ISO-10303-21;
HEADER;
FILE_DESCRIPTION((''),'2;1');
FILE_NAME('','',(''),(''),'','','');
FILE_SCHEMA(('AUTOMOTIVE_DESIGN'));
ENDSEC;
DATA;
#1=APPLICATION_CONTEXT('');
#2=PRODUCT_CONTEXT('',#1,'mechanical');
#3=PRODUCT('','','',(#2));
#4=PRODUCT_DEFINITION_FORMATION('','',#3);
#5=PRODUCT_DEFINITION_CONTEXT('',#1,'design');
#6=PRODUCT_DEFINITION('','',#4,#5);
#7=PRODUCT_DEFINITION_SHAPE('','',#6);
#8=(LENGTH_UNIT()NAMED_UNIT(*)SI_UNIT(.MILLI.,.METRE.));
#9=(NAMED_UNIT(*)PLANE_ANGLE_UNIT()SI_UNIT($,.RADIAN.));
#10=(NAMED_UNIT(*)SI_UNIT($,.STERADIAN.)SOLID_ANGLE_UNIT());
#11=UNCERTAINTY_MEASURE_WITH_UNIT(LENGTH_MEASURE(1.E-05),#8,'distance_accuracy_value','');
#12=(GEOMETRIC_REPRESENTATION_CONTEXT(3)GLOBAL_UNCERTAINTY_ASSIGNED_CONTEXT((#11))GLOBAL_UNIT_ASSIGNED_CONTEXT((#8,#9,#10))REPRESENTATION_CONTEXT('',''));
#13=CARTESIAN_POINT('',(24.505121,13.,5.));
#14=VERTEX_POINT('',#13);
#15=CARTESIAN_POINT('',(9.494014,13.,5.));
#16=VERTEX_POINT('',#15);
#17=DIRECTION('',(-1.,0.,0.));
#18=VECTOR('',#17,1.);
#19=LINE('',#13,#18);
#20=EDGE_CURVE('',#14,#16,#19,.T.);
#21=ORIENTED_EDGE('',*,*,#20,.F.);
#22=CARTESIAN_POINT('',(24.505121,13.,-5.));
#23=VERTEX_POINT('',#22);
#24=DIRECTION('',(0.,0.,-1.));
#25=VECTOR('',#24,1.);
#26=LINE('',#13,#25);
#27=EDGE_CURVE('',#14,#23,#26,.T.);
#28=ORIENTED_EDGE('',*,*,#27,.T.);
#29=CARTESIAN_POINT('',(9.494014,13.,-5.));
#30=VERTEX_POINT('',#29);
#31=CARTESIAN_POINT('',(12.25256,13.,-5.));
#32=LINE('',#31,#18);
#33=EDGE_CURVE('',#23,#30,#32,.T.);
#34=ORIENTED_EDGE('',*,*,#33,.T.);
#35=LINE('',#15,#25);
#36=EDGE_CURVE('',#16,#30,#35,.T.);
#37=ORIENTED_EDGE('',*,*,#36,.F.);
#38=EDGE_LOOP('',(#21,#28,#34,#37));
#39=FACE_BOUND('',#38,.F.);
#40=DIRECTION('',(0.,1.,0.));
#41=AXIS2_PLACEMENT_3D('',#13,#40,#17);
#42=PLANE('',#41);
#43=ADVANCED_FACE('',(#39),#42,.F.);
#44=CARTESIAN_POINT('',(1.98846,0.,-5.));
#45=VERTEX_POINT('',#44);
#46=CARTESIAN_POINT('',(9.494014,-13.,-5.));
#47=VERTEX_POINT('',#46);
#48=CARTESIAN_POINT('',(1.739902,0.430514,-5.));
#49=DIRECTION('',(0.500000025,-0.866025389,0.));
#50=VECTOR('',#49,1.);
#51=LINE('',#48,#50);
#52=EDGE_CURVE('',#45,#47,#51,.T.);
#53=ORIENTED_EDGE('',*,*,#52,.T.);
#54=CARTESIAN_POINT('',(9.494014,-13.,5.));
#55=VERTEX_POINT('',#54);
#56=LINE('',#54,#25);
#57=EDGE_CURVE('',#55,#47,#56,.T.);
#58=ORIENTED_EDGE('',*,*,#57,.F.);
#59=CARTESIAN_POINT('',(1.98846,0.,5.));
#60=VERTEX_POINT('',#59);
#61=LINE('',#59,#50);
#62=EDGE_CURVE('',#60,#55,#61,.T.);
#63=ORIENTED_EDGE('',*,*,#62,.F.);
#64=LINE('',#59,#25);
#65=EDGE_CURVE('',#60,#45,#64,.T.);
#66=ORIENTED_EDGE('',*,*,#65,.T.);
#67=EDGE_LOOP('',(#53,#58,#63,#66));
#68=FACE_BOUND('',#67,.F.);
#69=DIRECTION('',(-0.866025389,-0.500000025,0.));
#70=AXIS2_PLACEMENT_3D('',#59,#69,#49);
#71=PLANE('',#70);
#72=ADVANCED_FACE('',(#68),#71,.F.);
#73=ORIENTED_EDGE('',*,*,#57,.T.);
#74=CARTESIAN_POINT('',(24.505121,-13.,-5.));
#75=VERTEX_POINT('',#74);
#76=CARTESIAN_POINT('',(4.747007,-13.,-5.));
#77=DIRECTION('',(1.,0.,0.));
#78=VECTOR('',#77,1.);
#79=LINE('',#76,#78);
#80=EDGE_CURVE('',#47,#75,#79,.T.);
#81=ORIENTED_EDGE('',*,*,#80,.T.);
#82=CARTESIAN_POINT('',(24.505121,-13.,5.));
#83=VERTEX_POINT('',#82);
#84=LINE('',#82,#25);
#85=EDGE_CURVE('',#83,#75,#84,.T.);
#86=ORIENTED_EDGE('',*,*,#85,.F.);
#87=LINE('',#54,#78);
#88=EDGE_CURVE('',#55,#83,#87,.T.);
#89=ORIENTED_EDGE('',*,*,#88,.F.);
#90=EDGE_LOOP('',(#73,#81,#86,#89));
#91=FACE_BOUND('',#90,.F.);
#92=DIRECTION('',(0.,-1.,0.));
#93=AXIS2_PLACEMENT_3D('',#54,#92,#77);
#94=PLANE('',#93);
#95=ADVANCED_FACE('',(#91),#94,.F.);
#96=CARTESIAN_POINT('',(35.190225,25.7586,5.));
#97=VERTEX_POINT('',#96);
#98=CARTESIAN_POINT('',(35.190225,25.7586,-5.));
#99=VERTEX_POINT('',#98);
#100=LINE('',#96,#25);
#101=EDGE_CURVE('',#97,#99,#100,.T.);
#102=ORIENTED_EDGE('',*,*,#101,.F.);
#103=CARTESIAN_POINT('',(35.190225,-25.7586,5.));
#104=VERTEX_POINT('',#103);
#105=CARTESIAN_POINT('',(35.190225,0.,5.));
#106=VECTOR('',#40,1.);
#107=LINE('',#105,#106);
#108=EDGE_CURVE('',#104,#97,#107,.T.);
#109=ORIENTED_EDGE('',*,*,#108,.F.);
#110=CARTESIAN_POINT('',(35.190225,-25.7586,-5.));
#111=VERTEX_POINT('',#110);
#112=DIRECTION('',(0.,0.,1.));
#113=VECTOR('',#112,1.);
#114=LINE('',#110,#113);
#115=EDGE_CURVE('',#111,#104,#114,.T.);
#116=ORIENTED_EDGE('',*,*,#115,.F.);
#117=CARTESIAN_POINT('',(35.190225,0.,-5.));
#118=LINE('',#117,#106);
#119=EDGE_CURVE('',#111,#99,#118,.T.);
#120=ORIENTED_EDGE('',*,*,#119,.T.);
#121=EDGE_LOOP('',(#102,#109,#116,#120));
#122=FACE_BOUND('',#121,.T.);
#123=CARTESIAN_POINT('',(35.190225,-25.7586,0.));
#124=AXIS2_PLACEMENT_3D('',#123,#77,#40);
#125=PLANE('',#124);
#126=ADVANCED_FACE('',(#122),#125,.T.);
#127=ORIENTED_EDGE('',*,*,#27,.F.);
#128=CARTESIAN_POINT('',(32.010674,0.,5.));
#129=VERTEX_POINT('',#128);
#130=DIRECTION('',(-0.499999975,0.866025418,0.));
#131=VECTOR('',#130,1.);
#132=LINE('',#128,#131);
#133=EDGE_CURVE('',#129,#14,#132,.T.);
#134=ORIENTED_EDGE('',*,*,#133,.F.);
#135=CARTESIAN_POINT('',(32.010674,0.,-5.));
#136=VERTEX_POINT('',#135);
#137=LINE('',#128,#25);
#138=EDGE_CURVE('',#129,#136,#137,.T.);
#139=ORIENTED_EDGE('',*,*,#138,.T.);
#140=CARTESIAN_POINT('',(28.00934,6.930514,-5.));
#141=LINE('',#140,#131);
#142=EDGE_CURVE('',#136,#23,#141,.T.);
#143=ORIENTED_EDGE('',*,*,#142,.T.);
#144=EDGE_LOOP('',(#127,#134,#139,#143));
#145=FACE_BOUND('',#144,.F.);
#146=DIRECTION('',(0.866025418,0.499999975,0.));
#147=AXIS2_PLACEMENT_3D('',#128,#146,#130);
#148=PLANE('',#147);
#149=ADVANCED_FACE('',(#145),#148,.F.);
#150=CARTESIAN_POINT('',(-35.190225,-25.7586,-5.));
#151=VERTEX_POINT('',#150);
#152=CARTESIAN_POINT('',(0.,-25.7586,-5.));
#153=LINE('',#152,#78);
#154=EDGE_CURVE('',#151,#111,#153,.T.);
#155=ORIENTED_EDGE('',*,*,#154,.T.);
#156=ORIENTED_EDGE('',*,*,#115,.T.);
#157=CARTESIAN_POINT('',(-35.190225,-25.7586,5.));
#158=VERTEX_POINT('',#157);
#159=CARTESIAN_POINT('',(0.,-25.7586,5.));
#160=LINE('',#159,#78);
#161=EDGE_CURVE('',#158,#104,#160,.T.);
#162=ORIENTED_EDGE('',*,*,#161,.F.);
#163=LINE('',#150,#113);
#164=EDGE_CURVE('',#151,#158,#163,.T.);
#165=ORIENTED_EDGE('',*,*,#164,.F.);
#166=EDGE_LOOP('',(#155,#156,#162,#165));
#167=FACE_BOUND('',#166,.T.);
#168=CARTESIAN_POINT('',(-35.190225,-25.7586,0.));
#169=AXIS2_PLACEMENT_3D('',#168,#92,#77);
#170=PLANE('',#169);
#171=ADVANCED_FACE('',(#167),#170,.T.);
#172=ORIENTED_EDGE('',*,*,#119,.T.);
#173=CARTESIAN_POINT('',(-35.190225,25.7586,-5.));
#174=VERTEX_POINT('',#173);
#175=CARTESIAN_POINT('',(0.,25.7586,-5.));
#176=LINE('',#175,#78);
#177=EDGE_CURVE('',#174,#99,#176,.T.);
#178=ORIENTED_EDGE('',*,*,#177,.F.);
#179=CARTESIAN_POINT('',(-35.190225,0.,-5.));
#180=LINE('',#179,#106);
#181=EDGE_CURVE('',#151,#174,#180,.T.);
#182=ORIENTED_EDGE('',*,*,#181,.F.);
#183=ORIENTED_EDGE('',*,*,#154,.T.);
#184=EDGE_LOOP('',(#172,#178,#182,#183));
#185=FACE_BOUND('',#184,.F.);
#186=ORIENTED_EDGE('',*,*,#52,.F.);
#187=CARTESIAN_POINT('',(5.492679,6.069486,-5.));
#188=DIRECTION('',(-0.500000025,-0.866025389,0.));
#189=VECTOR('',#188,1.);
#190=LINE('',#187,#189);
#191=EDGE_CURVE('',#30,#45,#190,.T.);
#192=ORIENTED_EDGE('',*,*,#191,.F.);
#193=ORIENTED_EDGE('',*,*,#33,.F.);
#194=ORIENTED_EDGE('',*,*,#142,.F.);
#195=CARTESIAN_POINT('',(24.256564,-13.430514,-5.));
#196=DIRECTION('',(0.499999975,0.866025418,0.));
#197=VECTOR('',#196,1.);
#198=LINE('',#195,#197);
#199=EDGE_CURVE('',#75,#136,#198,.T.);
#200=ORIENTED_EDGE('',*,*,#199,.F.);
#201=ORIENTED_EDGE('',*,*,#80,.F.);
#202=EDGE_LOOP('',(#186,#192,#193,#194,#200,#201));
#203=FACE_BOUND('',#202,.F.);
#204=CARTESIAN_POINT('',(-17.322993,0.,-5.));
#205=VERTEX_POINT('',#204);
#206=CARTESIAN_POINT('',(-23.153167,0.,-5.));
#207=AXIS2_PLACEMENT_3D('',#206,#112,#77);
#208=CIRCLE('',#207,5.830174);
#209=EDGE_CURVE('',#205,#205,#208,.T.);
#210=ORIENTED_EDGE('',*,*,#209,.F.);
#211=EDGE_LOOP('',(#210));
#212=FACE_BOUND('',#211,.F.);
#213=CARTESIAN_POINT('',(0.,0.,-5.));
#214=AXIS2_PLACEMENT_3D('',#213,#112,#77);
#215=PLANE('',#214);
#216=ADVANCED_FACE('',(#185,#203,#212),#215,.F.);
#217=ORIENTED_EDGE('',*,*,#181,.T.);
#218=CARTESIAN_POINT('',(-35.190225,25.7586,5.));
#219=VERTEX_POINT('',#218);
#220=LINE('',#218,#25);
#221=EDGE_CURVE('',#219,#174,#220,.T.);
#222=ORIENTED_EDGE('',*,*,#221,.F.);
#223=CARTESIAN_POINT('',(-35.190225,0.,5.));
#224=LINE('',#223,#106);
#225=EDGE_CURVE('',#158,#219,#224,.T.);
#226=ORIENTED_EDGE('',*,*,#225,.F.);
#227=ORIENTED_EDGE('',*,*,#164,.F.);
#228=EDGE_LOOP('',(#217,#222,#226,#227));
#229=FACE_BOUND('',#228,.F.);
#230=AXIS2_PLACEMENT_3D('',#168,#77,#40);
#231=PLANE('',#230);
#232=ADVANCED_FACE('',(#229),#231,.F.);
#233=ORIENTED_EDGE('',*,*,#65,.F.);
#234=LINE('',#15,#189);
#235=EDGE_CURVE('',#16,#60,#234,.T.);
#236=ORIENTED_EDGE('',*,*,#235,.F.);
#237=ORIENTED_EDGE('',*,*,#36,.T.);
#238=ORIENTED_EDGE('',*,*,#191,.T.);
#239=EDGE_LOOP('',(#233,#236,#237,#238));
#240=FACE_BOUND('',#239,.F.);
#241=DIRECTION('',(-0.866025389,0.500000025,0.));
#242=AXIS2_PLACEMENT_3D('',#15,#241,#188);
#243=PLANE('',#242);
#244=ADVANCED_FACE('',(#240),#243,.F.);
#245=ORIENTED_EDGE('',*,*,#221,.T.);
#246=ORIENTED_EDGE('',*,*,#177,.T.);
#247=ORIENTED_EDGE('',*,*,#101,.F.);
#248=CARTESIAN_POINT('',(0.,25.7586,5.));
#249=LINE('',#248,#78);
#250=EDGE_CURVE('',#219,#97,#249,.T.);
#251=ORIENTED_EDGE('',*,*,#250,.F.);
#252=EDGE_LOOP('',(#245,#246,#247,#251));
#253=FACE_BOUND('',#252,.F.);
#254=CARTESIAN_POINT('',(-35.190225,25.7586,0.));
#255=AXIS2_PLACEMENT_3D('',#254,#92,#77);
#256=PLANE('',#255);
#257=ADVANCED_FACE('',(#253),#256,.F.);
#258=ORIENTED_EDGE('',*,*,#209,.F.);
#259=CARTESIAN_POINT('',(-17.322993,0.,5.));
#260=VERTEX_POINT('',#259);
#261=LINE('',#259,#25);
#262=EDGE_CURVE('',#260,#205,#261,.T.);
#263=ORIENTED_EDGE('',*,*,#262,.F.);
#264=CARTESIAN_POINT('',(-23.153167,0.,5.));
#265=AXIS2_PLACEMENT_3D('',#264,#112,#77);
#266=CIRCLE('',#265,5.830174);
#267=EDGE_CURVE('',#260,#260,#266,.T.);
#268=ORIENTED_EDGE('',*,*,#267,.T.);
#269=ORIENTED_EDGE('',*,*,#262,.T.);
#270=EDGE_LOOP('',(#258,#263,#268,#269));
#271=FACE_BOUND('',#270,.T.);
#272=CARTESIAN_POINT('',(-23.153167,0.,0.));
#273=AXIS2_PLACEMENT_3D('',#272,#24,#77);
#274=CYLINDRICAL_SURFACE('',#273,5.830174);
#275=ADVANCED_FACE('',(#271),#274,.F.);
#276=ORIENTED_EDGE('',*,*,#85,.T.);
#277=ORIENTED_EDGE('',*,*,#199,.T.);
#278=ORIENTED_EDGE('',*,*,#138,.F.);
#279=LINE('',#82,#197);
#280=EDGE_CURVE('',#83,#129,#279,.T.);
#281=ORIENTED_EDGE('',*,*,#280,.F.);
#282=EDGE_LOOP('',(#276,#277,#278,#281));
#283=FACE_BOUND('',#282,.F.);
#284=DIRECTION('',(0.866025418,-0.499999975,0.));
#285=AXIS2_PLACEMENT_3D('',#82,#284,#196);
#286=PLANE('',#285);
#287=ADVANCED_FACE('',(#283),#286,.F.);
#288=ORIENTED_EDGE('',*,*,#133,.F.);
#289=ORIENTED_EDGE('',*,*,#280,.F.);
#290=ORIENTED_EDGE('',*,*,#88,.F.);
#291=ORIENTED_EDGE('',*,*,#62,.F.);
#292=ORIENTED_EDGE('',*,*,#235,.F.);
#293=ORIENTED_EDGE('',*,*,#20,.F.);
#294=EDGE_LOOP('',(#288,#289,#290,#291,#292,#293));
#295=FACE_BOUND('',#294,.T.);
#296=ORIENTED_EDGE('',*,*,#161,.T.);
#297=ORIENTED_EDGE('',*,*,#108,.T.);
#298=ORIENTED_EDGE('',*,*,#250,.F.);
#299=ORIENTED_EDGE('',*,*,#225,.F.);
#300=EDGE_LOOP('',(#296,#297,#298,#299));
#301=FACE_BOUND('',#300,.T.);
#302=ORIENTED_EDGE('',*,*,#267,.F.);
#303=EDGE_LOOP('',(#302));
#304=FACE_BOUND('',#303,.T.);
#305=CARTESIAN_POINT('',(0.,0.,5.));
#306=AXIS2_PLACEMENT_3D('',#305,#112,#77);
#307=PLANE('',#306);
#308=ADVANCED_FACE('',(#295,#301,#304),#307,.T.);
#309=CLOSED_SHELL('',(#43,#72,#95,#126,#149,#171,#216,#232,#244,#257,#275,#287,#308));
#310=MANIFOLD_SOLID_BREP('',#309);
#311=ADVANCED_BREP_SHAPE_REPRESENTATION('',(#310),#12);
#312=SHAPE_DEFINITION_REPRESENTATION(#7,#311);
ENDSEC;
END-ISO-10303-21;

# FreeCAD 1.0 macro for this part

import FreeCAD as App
import Part
import Sketcher
from FreeCAD import Vector
Q = App.Units.Quantity


def add_polygon(sketch, points):
    """Adds a closed chain of lines whose ends are joined by coincident constraints."""
    first, n = sketch.GeometryCount, len(points)
    for a, b in zip(points, points[1:] + points[:1]):
        sketch.addGeometry(Part.LineSegment(App.Vector(*a, 0), App.Vector(*b, 0)), False)
    for i in range(n):
        sketch.addConstraint(Sketcher.Constraint("Coincident", first + i, 2, first + (i + 1) % n, 1))

doc = App.newDocument("Part")
body = doc.addObject("PartDesign::Body", "Body")

sketch1 = body.newObject("Sketcher::SketchObject", "Sketch")
sketch1.AttachmentSupport = (doc.getObject("XY_Plane"), [""])
sketch1.MapMode = "FlatFace"
add_polygon(sketch1, [(-35, 26), (-35, -26), (35, -26), (35, 26)])
sketch1.addGeometry(Part.Circle(Vector(-23, 0, 0), Vector(0, 0, 1), 6), False)
sketch1.addConstraint([
    Sketcher.Constraint("Vertical", 0),
    Sketcher.Constraint("Horizontal", 1),
    Sketcher.Constraint("Vertical", 2),
    Sketcher.Constraint("Horizontal", 3),
    Sketcher.Constraint("Symmetric", 0, 2, 2, 2, -1, 1),
    Sketcher.Constraint("PointOnObject", 4, 3, -1),
    Sketcher.Constraint("Diameter", 4, 11.660348),
    Sketcher.Constraint("DistanceY", 0, 2, 0, 1, 51.5172),
    Sketcher.Constraint("DistanceX", 1, 1, 1, 2, 70.38045),
    Sketcher.Constraint("DistanceX", 4, 3, 1, 2, 58.343392),
])
pad1 = body.newObject("PartDesign::Pad", "Pad")
pad1.Profile = sketch1
pad1.Length = 10
pad1.Midplane = True

sketch2 = body.newObject("Sketcher::SketchObject", "Sketch001")
sketch2.AttachmentSupport = (doc.getObject("XY_Plane"), [""])
sketch2.MapMode = "FlatFace"
sketch2.AttachmentOffset = App.Placement(Vector(0, 0, 5), App.Rotation())
add_polygon(sketch2, [(25, 13), (9, 13), (2, 0), (9, -13), (25, -13), (32, 0)])
sketch2.addConstraint([
    Sketcher.Constraint("Horizontal", 0),
    Sketcher.Constraint("Horizontal", 3),
    Sketcher.Constraint("Symmetric", 0, 2, 2, 2, -1),
    Sketcher.Constraint("PointOnObject", 1, 2, -1),
    Sketcher.Constraint("PointOnObject", 4, 2, -1),
    Sketcher.Constraint("Parallel", 1, 4),
    Sketcher.Constraint("Parallel", 2, 5),
    Sketcher.Constraint("Angle", 1, Q("-120.000002 deg")),
    Sketcher.Constraint("DistanceY", -1, 1, 0, 2, 13.0),
    Sketcher.Constraint("DistanceX", 0, 2, 0, 1, 15.011107),
    Sketcher.Constraint("DistanceX", -1, 1, 1, 2, 1.98846),
])
pocket1 = body.newObject("PartDesign::Pocket", "Pocket")
pocket1.Profile = sketch2
pocket1.Length = 25

doc.recompute()
